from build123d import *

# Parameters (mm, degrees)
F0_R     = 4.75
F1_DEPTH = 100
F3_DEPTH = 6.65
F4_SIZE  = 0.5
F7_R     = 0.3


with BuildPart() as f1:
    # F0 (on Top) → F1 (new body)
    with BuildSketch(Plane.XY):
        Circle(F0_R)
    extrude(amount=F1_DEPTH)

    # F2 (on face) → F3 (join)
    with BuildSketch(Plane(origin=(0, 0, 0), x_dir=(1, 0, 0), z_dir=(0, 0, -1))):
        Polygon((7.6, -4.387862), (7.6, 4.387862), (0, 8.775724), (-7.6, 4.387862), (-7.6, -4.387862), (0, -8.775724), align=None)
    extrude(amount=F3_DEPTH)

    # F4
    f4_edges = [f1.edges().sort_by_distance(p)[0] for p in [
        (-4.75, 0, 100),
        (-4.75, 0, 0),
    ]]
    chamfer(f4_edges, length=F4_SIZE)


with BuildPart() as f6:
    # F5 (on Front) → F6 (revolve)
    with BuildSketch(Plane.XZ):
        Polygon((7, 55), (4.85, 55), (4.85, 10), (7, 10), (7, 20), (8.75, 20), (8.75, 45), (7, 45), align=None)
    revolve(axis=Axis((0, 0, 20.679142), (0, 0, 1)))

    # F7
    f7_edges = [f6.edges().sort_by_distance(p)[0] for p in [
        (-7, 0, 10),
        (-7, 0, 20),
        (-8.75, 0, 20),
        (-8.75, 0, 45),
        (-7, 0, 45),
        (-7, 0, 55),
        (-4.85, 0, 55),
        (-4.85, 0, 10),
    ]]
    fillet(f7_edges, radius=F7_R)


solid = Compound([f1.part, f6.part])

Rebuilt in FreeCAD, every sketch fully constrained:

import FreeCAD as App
import Part
import Sketcher
Q = App.Units.Quantity


def edges_at(feature, points):
    """Names of the edges that pass closest to the given points."""
    edges = feature.Shape.Edges
    near = lambda p: min(range(len(edges)), key=lambda i: edges[i].distToShape(Part.Vertex(*p))[0])
    return sorted({f"Edge{near(p) + 1}" for p in points})


def add_polygon(sketch, points):
    """Adds a closed chain of lines whose ends are joined by coincident constraints."""
    first, n = sketch.GeometryCount, len(points)
    for a, b in zip(points, points[1:] + points[:1]):
        sketch.addGeometry(Part.LineSegment(App.Vector(*a, 0), App.Vector(*b, 0)), False)
    for i in range(n):
        sketch.addConstraint(Sketcher.Constraint("Coincident", first + i, 2, first + (i + 1) % n, 1))

doc = App.newDocument("Part")
body = doc.addObject("PartDesign::Body", "Body")

sketch1 = body.newObject("Sketcher::SketchObject", "Sketch")
sketch1.AttachmentSupport = (doc.getObject("XY_Plane"), [""])
sketch1.MapMode = "FlatFace"
sketch1.addGeometry(Part.Circle(App.Vector(0, 0, 0), App.Vector(0, 0, 1), 4.75), False)
sketch1.addConstraint(Sketcher.Constraint("Coincident", 0, 3, -1, 1))
sketch1.addConstraint(Sketcher.Constraint("Diameter", 0, Q("9.5 mm")))
pad1 = body.newObject("PartDesign::Pad", "Pad")
pad1.Profile = sketch1
pad1.Length = 100

sketch2 = body.newObject("Sketcher::SketchObject", "Sketch001")
sketch2.AttachmentSupport = (doc.getObject("XY_Plane"), [""])
sketch2.MapMode = "FlatFace"
add_polygon(sketch2, [(7.6, 4.387862), (7.6, -4.387862), (0, -8.775724), (-7.6, -4.387862), (-7.6, 4.387862), (0, 8.775724)])
sketch2.addConstraint(Sketcher.Constraint("Vertical", 0))
sketch2.addConstraint(Sketcher.Constraint("Vertical", 3))
sketch2.addConstraint(Sketcher.Constraint("Symmetric", 0, 2, 3, 2, -1, 1))
sketch2.addConstraint(Sketcher.Constraint("Symmetric", 1, 2, 4, 2, -1, 1))
sketch2.addConstraint(Sketcher.Constraint("PointOnObject", 1, 2, -2))
sketch2.addConstraint(Sketcher.Constraint("Parallel", 2, 5))
sketch2.addConstraint(Sketcher.Constraint("Horizontal", 0, 2, 2, 2))
sketch2.addConstraint(Sketcher.Constraint("Angle", 1, Q("-150 deg")))
sketch2.addConstraint(Sketcher.Constraint("DistanceX", -1, 1, 0, 2, Q("7.6 mm")))
sketch2.addConstraint(Sketcher.Constraint("DistanceY", 0, 2, 0, 1, Q("8.775724 mm")))
pad2 = body.newObject("PartDesign::Pad", "Pad001")
pad2.Profile = sketch2
pad2.Length = 6.65
pad2.Reversed = True
doc.recompute()

chamfer = body.newObject("PartDesign::Chamfer", "Chamfer")
chamfer.Base = (pad2, edges_at(pad2, [(-4.75, 0, 100), (-4.75, 0, 0)]))
chamfer.Size = 0.5
body2 = doc.addObject("PartDesign::Body", "Body001")

sketch3 = body2.newObject("Sketcher::SketchObject", "Sketch002")
sketch3.AttachmentSupport = (doc.getObject("XZ_Plane001"), [""])
sketch3.MapMode = "FlatFace"
add_polygon(sketch3, [(7, 55), (4.85, 55), (4.85, 10), (7, 10), (7, 20), (8.75, 20), (8.75, 45), (7, 45)])
sketch3.addConstraint(Sketcher.Constraint("Horizontal", 0))
sketch3.addConstraint(Sketcher.Constraint("Vertical", 1))
sketch3.addConstraint(Sketcher.Constraint("Horizontal", 2))
sketch3.addConstraint(Sketcher.Constraint("Vertical", 3))
sketch3.addConstraint(Sketcher.Constraint("Horizontal", 4))
sketch3.addConstraint(Sketcher.Constraint("Vertical", 5))
sketch3.addConstraint(Sketcher.Constraint("Horizontal", 6))
sketch3.addConstraint(Sketcher.Constraint("Vertical", 7))
sketch3.addConstraint(Sketcher.Constraint("Vertical", 3, 2, 6, 2))
sketch3.addConstraint(Sketcher.Constraint("Equal", 3, 7))
sketch3.addConstraint(Sketcher.Constraint("DistanceY", 1, 2, 1, 1, Q("45 mm")))
sketch3.addConstraint(Sketcher.Constraint("DistanceY", 3, 1, 3, 2, Q("10 mm")))
sketch3.addConstraint(Sketcher.Constraint("DistanceY", -1, 1, 0, 2, Q("55 mm")))
sketch3.addConstraint(Sketcher.Constraint("DistanceX", -1, 1, 2, 2, Q("7 mm")))
sketch3.addConstraint(Sketcher.Constraint("DistanceX", 0, 2, 0, 1, Q("2.15 mm")))
sketch3.addConstraint(Sketcher.Constraint("DistanceX", 4, 1, 4, 2, Q("1.75 mm")))
revolution = body2.newObject("PartDesign::Revolution", "Revolution")
revolution.Profile = sketch3
revolution.ReferenceAxis = (sketch3, ["V_Axis"])
revolution.Angle = 360
doc.recompute()

fillet = body2.newObject("PartDesign::Fillet", "Fillet")
fillet.Base = (revolution, edges_at(revolution, [
    (-7, 0, 10),
    (-7, 0, 20),
    (-8.75, 0, 20),
    (-8.75, 0, 45),
    (-7, 0, 45),
    (-7, 0, 55),
    (-4.85, 0, 55),
    (-4.85, 0, 10),
]))
fillet.Radius = 0.3

doc.recompute()
